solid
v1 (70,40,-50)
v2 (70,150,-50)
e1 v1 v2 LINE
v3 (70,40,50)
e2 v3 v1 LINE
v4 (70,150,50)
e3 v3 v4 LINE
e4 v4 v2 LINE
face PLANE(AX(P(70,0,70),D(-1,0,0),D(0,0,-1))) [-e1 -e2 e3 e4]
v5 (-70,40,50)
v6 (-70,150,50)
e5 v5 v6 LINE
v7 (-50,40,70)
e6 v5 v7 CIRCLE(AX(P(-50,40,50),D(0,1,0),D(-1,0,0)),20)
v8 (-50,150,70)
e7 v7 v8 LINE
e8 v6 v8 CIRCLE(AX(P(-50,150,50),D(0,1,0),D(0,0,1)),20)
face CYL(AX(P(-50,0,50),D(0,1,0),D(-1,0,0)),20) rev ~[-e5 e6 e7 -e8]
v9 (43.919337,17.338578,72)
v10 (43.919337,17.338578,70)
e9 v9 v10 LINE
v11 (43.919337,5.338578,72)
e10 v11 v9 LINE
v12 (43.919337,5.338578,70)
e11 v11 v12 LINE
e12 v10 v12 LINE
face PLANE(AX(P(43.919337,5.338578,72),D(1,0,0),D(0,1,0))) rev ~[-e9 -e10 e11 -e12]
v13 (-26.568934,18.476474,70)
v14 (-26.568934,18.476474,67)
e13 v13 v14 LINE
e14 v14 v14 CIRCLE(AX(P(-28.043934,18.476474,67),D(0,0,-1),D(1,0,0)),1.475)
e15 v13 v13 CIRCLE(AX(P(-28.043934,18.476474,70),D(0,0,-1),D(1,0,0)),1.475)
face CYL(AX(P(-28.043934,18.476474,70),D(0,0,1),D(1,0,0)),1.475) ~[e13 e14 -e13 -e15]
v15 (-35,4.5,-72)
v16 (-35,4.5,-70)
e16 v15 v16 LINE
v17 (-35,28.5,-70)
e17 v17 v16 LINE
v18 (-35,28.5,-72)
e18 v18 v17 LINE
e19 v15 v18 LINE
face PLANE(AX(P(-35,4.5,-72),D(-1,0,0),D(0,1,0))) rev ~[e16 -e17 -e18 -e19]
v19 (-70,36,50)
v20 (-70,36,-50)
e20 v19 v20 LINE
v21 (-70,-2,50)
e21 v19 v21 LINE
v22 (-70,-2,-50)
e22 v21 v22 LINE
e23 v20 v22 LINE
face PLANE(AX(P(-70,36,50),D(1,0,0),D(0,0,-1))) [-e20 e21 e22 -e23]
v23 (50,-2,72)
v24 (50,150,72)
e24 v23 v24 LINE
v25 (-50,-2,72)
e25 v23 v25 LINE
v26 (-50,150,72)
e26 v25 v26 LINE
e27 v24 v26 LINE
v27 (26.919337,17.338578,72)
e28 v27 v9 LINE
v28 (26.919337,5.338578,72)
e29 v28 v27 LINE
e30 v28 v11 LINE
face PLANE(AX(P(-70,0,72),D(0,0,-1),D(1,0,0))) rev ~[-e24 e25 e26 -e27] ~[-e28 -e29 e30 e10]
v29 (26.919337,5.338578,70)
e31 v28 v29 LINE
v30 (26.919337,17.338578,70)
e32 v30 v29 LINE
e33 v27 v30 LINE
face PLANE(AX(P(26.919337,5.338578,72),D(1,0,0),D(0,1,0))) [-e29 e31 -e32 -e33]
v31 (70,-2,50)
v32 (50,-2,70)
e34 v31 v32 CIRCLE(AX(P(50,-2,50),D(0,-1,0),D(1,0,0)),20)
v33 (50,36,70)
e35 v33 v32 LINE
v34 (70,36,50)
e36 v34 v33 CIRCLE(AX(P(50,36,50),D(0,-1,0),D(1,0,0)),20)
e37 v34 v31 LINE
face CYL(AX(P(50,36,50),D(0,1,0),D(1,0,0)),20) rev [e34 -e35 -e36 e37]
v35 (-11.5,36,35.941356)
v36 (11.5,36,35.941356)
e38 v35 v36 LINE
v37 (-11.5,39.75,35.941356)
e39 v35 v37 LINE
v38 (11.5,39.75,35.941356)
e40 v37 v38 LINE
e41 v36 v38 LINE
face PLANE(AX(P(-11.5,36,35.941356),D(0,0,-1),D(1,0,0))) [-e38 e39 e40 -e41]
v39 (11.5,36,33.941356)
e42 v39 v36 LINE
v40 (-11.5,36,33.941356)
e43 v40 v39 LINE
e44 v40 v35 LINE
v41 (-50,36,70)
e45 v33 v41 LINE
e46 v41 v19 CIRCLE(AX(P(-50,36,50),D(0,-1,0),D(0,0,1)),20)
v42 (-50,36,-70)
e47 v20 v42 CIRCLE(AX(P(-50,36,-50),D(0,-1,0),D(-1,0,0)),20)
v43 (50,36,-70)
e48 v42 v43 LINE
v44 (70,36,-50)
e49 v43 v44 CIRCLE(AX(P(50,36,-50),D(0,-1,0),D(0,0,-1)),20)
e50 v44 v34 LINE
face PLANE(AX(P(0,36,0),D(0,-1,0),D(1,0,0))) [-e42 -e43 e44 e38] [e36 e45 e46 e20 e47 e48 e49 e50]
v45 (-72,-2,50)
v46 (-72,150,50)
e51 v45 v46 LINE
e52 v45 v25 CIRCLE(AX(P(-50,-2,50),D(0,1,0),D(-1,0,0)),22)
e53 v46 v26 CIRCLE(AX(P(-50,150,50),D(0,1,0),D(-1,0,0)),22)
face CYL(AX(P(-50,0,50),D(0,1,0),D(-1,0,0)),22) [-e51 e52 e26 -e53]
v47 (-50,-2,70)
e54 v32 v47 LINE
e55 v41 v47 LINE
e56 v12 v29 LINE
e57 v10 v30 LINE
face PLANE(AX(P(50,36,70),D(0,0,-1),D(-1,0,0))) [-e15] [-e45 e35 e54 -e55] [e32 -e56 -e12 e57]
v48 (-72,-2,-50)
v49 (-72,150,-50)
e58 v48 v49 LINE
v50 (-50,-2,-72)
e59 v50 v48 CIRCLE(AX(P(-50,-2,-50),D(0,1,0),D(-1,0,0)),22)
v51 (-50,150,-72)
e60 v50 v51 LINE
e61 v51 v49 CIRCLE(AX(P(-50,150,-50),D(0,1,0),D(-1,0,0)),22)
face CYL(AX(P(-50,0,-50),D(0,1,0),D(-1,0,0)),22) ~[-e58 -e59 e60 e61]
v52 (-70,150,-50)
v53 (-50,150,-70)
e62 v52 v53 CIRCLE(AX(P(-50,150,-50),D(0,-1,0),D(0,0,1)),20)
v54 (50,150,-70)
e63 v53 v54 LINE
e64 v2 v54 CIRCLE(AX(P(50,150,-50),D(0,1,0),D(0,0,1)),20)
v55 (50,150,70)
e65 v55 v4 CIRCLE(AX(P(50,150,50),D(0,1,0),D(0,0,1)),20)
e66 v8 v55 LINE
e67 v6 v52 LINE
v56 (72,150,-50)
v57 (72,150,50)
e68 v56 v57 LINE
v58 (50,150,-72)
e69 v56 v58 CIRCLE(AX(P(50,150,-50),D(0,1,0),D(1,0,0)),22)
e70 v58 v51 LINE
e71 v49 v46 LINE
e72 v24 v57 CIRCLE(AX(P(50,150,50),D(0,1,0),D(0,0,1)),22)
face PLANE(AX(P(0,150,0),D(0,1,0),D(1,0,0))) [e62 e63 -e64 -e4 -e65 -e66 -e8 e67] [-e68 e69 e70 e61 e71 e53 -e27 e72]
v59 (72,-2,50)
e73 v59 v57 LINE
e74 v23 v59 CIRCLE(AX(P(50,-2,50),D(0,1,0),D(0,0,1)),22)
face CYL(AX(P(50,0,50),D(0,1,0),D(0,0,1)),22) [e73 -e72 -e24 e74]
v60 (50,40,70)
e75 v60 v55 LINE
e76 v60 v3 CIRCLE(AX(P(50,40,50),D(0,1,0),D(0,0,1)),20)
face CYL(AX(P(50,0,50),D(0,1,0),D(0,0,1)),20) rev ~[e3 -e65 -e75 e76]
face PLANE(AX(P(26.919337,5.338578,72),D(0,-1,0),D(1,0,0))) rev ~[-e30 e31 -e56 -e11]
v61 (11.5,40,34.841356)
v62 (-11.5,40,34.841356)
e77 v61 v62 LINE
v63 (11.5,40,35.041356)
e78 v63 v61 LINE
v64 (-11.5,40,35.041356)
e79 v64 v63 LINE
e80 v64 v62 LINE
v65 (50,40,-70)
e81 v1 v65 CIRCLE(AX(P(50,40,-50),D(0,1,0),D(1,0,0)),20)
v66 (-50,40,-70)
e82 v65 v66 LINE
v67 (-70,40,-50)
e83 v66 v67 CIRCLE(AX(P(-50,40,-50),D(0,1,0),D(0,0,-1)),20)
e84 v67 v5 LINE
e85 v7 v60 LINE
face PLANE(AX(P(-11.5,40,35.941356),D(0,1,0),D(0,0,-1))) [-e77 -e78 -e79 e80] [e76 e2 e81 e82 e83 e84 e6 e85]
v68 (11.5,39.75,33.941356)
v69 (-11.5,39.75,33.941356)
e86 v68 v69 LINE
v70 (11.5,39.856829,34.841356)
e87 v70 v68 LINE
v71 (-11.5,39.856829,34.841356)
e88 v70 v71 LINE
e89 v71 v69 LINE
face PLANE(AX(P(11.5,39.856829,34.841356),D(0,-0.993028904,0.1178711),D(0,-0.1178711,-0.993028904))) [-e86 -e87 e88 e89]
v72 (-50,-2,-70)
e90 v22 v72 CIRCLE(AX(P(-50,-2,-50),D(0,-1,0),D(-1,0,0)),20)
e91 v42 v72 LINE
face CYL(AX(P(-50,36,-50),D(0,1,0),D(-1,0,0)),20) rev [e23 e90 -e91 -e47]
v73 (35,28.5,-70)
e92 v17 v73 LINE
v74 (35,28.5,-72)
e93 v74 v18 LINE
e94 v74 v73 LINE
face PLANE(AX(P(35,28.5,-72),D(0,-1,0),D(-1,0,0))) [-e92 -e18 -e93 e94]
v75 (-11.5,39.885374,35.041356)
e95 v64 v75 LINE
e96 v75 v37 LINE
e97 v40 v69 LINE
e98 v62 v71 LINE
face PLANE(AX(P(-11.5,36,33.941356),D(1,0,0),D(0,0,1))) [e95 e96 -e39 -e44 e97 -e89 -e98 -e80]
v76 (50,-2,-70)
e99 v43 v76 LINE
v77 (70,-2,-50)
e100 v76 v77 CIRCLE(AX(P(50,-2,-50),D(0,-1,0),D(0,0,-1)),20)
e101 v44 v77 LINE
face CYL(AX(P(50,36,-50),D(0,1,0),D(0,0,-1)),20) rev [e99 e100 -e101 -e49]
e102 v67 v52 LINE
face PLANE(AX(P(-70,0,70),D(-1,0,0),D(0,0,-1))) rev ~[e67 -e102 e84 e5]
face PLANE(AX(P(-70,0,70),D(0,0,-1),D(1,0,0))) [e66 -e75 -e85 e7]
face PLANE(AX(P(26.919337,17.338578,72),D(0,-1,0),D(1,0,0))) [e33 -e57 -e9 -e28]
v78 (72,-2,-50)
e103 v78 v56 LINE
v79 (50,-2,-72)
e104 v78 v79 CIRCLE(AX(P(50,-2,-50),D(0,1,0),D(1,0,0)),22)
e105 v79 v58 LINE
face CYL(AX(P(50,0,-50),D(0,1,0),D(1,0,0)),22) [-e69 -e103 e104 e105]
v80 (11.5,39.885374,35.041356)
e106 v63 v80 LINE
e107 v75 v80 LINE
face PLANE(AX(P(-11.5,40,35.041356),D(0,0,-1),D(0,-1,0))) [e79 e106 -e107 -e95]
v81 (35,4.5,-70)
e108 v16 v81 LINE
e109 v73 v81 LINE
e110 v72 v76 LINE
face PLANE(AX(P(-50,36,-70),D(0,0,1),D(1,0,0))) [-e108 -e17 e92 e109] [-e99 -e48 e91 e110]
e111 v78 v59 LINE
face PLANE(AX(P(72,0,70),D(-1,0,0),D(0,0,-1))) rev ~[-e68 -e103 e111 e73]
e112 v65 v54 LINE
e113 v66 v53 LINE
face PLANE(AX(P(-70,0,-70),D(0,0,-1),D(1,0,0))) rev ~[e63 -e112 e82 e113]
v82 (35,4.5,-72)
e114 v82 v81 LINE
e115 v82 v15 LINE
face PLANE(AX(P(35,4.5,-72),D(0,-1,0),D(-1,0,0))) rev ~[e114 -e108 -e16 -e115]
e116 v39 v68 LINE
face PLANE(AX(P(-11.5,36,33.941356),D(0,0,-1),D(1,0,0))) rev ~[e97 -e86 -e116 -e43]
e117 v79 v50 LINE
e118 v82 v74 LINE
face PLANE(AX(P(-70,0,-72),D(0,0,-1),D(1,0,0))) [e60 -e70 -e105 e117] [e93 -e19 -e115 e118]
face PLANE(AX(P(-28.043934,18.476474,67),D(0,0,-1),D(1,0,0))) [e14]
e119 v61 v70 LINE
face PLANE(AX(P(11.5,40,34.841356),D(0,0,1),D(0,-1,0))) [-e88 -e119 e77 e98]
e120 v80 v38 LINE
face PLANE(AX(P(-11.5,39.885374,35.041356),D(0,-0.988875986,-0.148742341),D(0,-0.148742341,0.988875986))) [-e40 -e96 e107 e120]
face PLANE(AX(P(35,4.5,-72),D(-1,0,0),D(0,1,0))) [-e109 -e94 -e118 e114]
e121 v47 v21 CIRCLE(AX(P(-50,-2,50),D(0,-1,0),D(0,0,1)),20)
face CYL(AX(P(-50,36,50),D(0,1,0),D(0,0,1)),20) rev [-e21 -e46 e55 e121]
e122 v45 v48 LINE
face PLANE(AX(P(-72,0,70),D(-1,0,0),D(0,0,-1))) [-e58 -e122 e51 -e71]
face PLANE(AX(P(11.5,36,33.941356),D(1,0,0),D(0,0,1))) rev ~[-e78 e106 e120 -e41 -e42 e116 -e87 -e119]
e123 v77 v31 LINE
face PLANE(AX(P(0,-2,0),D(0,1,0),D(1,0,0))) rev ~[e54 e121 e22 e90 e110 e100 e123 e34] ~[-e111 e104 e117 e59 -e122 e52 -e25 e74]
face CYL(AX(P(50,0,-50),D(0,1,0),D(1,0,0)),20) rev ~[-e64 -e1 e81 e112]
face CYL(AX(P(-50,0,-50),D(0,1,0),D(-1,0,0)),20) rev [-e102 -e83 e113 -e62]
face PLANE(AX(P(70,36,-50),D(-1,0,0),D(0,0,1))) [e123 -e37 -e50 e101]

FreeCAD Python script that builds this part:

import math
import FreeCAD as App
import Part
import Sketcher


def edges_at(feature, points):
    """Names of the edges that pass closest to the given points."""
    edges = feature.Shape.Edges
    near = lambda p: min(range(len(edges)), key=lambda i: edges[i].distToShape(Part.Vertex(*p))[0])
    return sorted({f"Edge{near(p) + 1}" for p in points})


def faces_at(feature, points):
    """Names of the faces that lie closest to the given points."""
    faces = feature.Shape.Faces
    near = lambda p: min(range(len(faces)), key=lambda i: faces[i].distToShape(Part.Vertex(*p))[0])
    return sorted({f"Face{near(p) + 1}" for p in points})


def add_polygon(sketch, points):
    """Adds a closed chain of lines whose ends are joined by coincident constraints."""
    first, n = sketch.GeometryCount, len(points)
    for a, b in zip(points, points[1:] + points[:1]):
        sketch.addGeometry(Part.LineSegment(App.Vector(*a, 0), App.Vector(*b, 0)), False)
    for i in range(n):
        sketch.addConstraint(Sketcher.Constraint("Coincident", first + i, 2, first + (i + 1) % n, 1))

doc = App.newDocument("Part")
body = doc.addObject("PartDesign::Body", "Body")

# Sketch on XZ plane
sketch1 = body.newObject("Sketcher::SketchObject", "Sketch")
sketch1.AttachmentSupport = (doc.getObject("XZ_Plane"), [""])
sketch1.MapMode = "FlatFace"
add_polygon(sketch1, [(-70, -70), (-70, 70), (70, 70), (70, -70)])  # lines 0-3
sketch1.addConstraint(Sketcher.Constraint("Vertical", 0))
sketch1.addConstraint(Sketcher.Constraint("Horizontal", 1))
sketch1.addConstraint(Sketcher.Constraint("Vertical", 2))
sketch1.addConstraint(Sketcher.Constraint("Horizontal", 3))
sketch1.addConstraint(Sketcher.Constraint("Symmetric", 0, 2, 2, 2, -1, 1))
sketch1.addConstraint(Sketcher.Constraint("Equal", 3, 0))
sketch1.addConstraint(Sketcher.Constraint("DistanceX", 1, 1, 1, 2, 140.0))
pad1 = body.newObject("PartDesign::Pad", "Pad")
pad1.Profile = sketch1
pad1.Length = 150
pad1.Reversed = True
doc.recompute()

fillet = body.newObject("PartDesign::Fillet", "Fillet")
fillet.Base = (pad1, edges_at(pad1, [
    (70, 75, 70),
    (-70, 75, 70),
    (-70, 75, -70),
    (70, 75, -70),
]))
fillet.Radius = 20
doc.recompute()

thickness = body.newObject("PartDesign::Thickness", "Thickness")
thickness.Base = (fillet, faces_at(fillet, [(0, 150, 0)]))
thickness.Value = 2
thickness.Reversed = False
thickness.Join = "Intersection"

# Sketch on XZ plane
sketch2 = body.newObject("Sketcher::SketchObject", "Sketch001")
sketch2.AttachmentSupport = (doc.getObject("XZ_Plane"), [""])
sketch2.MapMode = "FlatFace"
sketch2.AttachmentOffset = App.Placement(App.Vector(0, 0, -40), App.Rotation())
sketch2.addGeometry(Part.LineSegment(App.Vector(70, 50, 0), App.Vector(70, -50, 0)), False)
sketch2.addGeometry(Part.ArcOfCircle(Part.Circle(App.Vector(50, -50, 0), App.Vector(0, 0, 1), 20), math.radians(-90), math.radians(0)), False)
sketch2.addGeometry(Part.LineSegment(App.Vector(50, -70, 0), App.Vector(-50, -70, 0)), False)
sketch2.addGeometry(Part.ArcOfCircle(Part.Circle(App.Vector(-50, -50, 0), App.Vector(0, 0, 1), 20), math.radians(180), math.radians(270)), False)
sketch2.addGeometry(Part.LineSegment(App.Vector(-70, -50, 0), App.Vector(-70, 50, 0)), False)
sketch2.addGeometry(Part.ArcOfCircle(Part.Circle(App.Vector(-50, 50, 0), App.Vector(0, 0, 1), 20), math.radians(90), math.radians(180)), False)
sketch2.addGeometry(Part.LineSegment(App.Vector(-50, 70, 0), App.Vector(50, 70, 0)), False)
sketch2.addGeometry(Part.ArcOfCircle(Part.Circle(App.Vector(50, 50, 0), App.Vector(0, 0, 1), 20), math.radians(0), math.radians(90)), False)
sketch2.addConstraint(Sketcher.Constraint("Tangent", 0, 2, 1, 2))
sketch2.addConstraint(Sketcher.Constraint("Tangent", 1, 1, 2, 1))
sketch2.addConstraint(Sketcher.Constraint("Tangent", 2, 2, 3, 2))
sketch2.addConstraint(Sketcher.Constraint("Tangent", 3, 1, 4, 1))
sketch2.addConstraint(Sketcher.Constraint("Tangent", 4, 2, 5, 2))
sketch2.addConstraint(Sketcher.Constraint("Tangent", 5, 1, 6, 1))
sketch2.addConstraint(Sketcher.Constraint("Tangent", 6, 2, 7, 2))
sketch2.addConstraint(Sketcher.Constraint("Tangent", 7, 1, 0, 1))
sketch2.addConstraint(Sketcher.Constraint("Vertical", 0))
sketch2.addConstraint(Sketcher.Constraint("Horizontal", 2))
sketch2.addConstraint(Sketcher.Constraint("Vertical", 4))
sketch2.addConstraint(Sketcher.Constraint("Horizontal", 6))
sketch2.addConstraint(Sketcher.Constraint("Equal", 1, 3))
sketch2.addConstraint(Sketcher.Constraint("Equal", 3, 5))
sketch2.addConstraint(Sketcher.Constraint("Equal", 5, 7))
sketch2.addConstraint(Sketcher.Constraint("Symmetric", 1, 3, 5, 3, -1, 1))
sketch2.addConstraint(Sketcher.Constraint("Equal", 6, 0))
sketch2.addConstraint(Sketcher.Constraint("Radius", 1, 20.0))
sketch2.addConstraint(Sketcher.Constraint("DistanceX", 2, 2, 2, 1, 100.0))
pad2 = body.newObject("PartDesign::Pad", "Pad001")
pad2.Profile = sketch2
pad2.Length = 40

# Sketch on XZ plane
sketch3 = body.newObject("Sketcher::SketchObject", "Sketch002")
sketch3.AttachmentSupport = (doc.getObject("XZ_Plane"), [""])
sketch3.MapMode = "FlatFace"
sketch3.AttachmentOffset = App.Placement(App.Vector(0, 0, -36), App.Rotation())
sketch3.addGeometry(Part.LineSegment(App.Vector(70, -50, 0), App.Vector(70, 50, 0)), False)
sketch3.addGeometry(Part.ArcOfCircle(Part.Circle(App.Vector(50, 50, 0), App.Vector(0, 0, 1), 20), math.radians(0), math.radians(90)), False)
sketch3.addGeometry(Part.LineSegment(App.Vector(50, 70, 0), App.Vector(-50, 70, 0)), False)
sketch3.addGeometry(Part.ArcOfCircle(Part.Circle(App.Vector(-50, 50, 0), App.Vector(0, 0, 1), 20), math.radians(90), math.radians(180)), False)
sketch3.addGeometry(Part.LineSegment(App.Vector(-70, 50, 0), App.Vector(-70, -50, 0)), False)
sketch3.addGeometry(Part.ArcOfCircle(Part.Circle(App.Vector(-50, -50, 0), App.Vector(0, 0, 1), 20), math.radians(180), math.radians(270)), False)
sketch3.addGeometry(Part.LineSegment(App.Vector(-50, -70, 0), App.Vector(50, -70, 0)), False)
sketch3.addGeometry(Part.ArcOfCircle(Part.Circle(App.Vector(50, -50, 0), App.Vector(0, 0, 1), 20), math.radians(-90), math.radians(0)), False)
sketch3.addConstraint(Sketcher.Constraint("Tangent", 0, 2, 1, 1))
sketch3.addConstraint(Sketcher.Constraint("Tangent", 1, 2, 2, 1))
sketch3.addConstraint(Sketcher.Constraint("Tangent", 2, 2, 3, 1))
sketch3.addConstraint(Sketcher.Constraint("Tangent", 3, 2, 4, 1))
sketch3.addConstraint(Sketcher.Constraint("Tangent", 4, 2, 5, 1))
sketch3.addConstraint(Sketcher.Constraint("Tangent", 5, 2, 6, 1))
sketch3.addConstraint(Sketcher.Constraint("Tangent", 6, 2, 7, 1))
sketch3.addConstraint(Sketcher.Constraint("Tangent", 7, 2, 0, 1))
sketch3.addConstraint(Sketcher.Constraint("Vertical", 0))
sketch3.addConstraint(Sketcher.Constraint("Horizontal", 2))
sketch3.addConstraint(Sketcher.Constraint("Vertical", 4))
sketch3.addConstraint(Sketcher.Constraint("Horizontal", 6))
sketch3.addConstraint(Sketcher.Constraint("Equal", 1, 3))
sketch3.addConstraint(Sketcher.Constraint("Equal", 3, 5))
sketch3.addConstraint(Sketcher.Constraint("Equal", 5, 7))
sketch3.addConstraint(Sketcher.Constraint("Symmetric", 1, 3, 5, 3, -1, 1))
sketch3.addConstraint(Sketcher.Constraint("Equal", 6, 0))
sketch3.addConstraint(Sketcher.Constraint("Radius", 1, 20.0))
sketch3.addConstraint(Sketcher.Constraint("DistanceX", 2, 2, 2, 1, 100.0))
pocket1 = body.newObject("PartDesign::Pocket", "Pocket")
pocket1.Profile = sketch3
pocket1.Length = 38
pocket1.Reversed = True

# Sketch on XZ plane
sketch4 = body.newObject("Sketcher::SketchObject", "Sketch003")
sketch4.AttachmentSupport = (doc.getObject("XZ_Plane"), [""])
sketch4.MapMode = "FlatFace"
sketch4.AttachmentOffset = App.Placement(App.Vector(0, 0, -36), App.Rotation())
add_polygon(sketch4, [(-11.5, 35.941356), (-11.5, 33.941356), (11.5, 33.941356), (11.5, 35.941356)])  # lines 0-3
sketch4.addConstraint(Sketcher.Constraint("Vertical", 0))
sketch4.addConstraint(Sketcher.Constraint("Horizontal", 1))
sketch4.addConstraint(Sketcher.Constraint("Vertical", 2))
sketch4.addConstraint(Sketcher.Constraint("Horizontal", 3))
sketch4.addConstraint(Sketcher.Constraint("DistanceX", 1, 1, 1, 2, 23.0))
sketch4.addConstraint(Sketcher.Constraint("DistanceY", 0, 2, 0, 1, 2.0))
sketch4.addConstraint(Sketcher.Constraint("DistanceX", 0, 2, -1, 1, 11.5))
sketch4.addConstraint(Sketcher.Constraint("DistanceY", -1, 1, 0, 2, 33.941356))
pocket2 = body.newObject("PartDesign::Pocket", "Pocket001")
pocket2.Profile = sketch4
pocket2.Length = 33

# Sketch on XY plane
sketch5 = body.newObject("Sketcher::SketchObject", "Sketch004")
sketch5.AttachmentSupport = (doc.getObject("XY_Plane"), [""])
sketch5.MapMode = "FlatFace"
sketch5.AttachmentOffset = App.Placement(App.Vector(0, 0, -72), App.Rotation())
add_polygon(sketch5, [(35, 28.5), (35, 4.5), (-35, 4.5), (-35, 28.5)])  # lines 0-3
sketch5.addConstraint(Sketcher.Constraint("Vertical", 0))
sketch5.addConstraint(Sketcher.Constraint("Horizontal", 1))
sketch5.addConstraint(Sketcher.Constraint("Vertical", 2))
sketch5.addConstraint(Sketcher.Constraint("Horizontal", 3))
sketch5.addConstraint(Sketcher.Constraint("DistanceX", 1, 2, 1, 1, 70.0))
sketch5.addConstraint(Sketcher.Constraint("DistanceY", 0, 2, 0, 1, 24.0))
sketch5.addConstraint(Sketcher.Constraint("DistanceX", -1, 1, 0, 2, 35.0))
sketch5.addConstraint(Sketcher.Constraint("DistanceY", -1, 1, 0, 2, 4.5))
pocket3 = body.newObject("PartDesign::Pocket", "Pocket002")
pocket3.Profile = sketch5
pocket3.Length = 33
pocket3.Reversed = True

# Sketch on XY plane
sketch6 = body.newObject("Sketcher::SketchObject", "Sketch005")
sketch6.AttachmentSupport = (doc.getObject("XY_Plane"), [""])
sketch6.MapMode = "FlatFace"
sketch6.AttachmentOffset = App.Placement(App.Vector(0, 0, 72), App.Rotation())
add_polygon(sketch6, [(26.919337, 17.338578), (26.919337, 5.338578), (43.919337, 5.338578), (43.919337, 17.338578)])  # lines 0-3
sketch6.addConstraint(Sketcher.Constraint("Vertical", 0))
sketch6.addConstraint(Sketcher.Constraint("Horizontal", 1))
sketch6.addConstraint(Sketcher.Constraint("Vertical", 2))
sketch6.addConstraint(Sketcher.Constraint("Horizontal", 3))
sketch6.addConstraint(Sketcher.Constraint("DistanceX", 1, 1, 1, 2, 17.0))
sketch6.addConstraint(Sketcher.Constraint("DistanceY", 0, 2, 0, 1, 12.0))
sketch6.addConstraint(Sketcher.Constraint("DistanceY", -1, 1, 0, 2, 5.338578))
sketch6.addConstraint(Sketcher.Constraint("DistanceX", -1, 1, 0, 2, 26.919337))
pocket4 = body.newObject("PartDesign::Pocket", "Pocket003")
pocket4.Profile = sketch6
pocket4.Length = 33

# Sketch on YZ plane
sketch7 = body.newObject("Sketcher::SketchObject", "Sketch006")
sketch7.AttachmentSupport = (doc.getObject("YZ_Plane"), [""])
sketch7.MapMode = "FlatFace"
sketch7.AttachmentOffset = App.Placement(App.Vector(0, 0, 11.5), App.Rotation())
add_polygon(sketch7, [(40, 34.841356), (40, 33.941356), (39.75, 33.941356), (39.856829, 34.841356)])  # lines 0-3
sketch7.addConstraint(Sketcher.Constraint("Vertical", 0))
sketch7.addConstraint(Sketcher.Constraint("Horizontal", 1))
sketch7.addConstraint(Sketcher.Constraint("Horizontal", 3))
sketch7.addConstraint(Sketcher.Constraint("DistanceY", 0, 2, 0, 1, 0.9))
sketch7.addConstraint(Sketcher.Constraint("DistanceX", -1, 1, 0, 2, 40.0))
sketch7.addConstraint(Sketcher.Constraint("DistanceX", 1, 2, 1, 1, 0.25))
sketch7.addConstraint(Sketcher.Constraint("DistanceX", 3, 1, 3, 2, 0.143171))
sketch7.addConstraint(Sketcher.Constraint("DistanceY", -1, 1, 0, 2, 33.941356))
pad3 = body.newObject("PartDesign::Pad", "Pad002")
pad3.Profile = sketch7
pad3.Length = 23
pad3.Reversed = True

# Sketch on YZ plane
sketch8 = body.newObject("Sketcher::SketchObject", "Sketch007")
sketch8.AttachmentSupport = (doc.getObject("YZ_Plane"), [""])
sketch8.MapMode = "FlatFace"
sketch8.AttachmentOffset = App.Placement(App.Vector(0, 0, -11.5), App.Rotation())
add_polygon(sketch8, [(40, 35.041356), (40, 35.941356), (39.75, 35.941356), (39.885374, 35.041356)])  # lines 0-3
sketch8.addConstraint(Sketcher.Constraint("Vertical", 0))
sketch8.addConstraint(Sketcher.Constraint("Horizontal", 1))
sketch8.addConstraint(Sketcher.Constraint("Horizontal", 3))
sketch8.addConstraint(Sketcher.Constraint("DistanceY", 0, 1, 0, 2, 0.9))
sketch8.addConstraint(Sketcher.Constraint("DistanceX", -1, 1, 0, 2, 40.0))
sketch8.addConstraint(Sketcher.Constraint("DistanceX", 1, 2, 1, 1, 0.25))
sketch8.addConstraint(Sketcher.Constraint("DistanceX", 3, 1, 3, 2, 0.114626))
sketch8.addConstraint(Sketcher.Constraint("DistanceY", -1, 1, 0, 2, 35.941356))
pad4 = body.newObject("PartDesign::Pad", "Pad003")
pad4.Profile = sketch8
pad4.Length = 23

# Sketch on XY plane
sketch9 = body.newObject("Sketcher::SketchObject", "Sketch008")
sketch9.AttachmentSupport = (doc.getObject("XY_Plane"), [""])
sketch9.MapMode = "FlatFace"
sketch9.AttachmentOffset = App.Placement(App.Vector(0, 0, 70), App.Rotation())
sketch9.addGeometry(Part.Circle(App.Vector(-28.043934, 18.476474, 0), App.Vector(0, 0, 1), 1.475), False)
sketch9.addConstraint(Sketcher.Constraint("Diameter", 0, 2.95))
sketch9.addConstraint(Sketcher.Constraint("DistanceX", 0, 3, -1, 1, 28.043934))
sketch9.addConstraint(Sketcher.Constraint("DistanceY", -1, 1, 0, 3, 18.476474))
pad5 = body.newObject("PartDesign::Pad", "Pad004")
pad5.Profile = sketch9
pad5.Length = 3
pad5.Reversed = True

doc.recompute()
